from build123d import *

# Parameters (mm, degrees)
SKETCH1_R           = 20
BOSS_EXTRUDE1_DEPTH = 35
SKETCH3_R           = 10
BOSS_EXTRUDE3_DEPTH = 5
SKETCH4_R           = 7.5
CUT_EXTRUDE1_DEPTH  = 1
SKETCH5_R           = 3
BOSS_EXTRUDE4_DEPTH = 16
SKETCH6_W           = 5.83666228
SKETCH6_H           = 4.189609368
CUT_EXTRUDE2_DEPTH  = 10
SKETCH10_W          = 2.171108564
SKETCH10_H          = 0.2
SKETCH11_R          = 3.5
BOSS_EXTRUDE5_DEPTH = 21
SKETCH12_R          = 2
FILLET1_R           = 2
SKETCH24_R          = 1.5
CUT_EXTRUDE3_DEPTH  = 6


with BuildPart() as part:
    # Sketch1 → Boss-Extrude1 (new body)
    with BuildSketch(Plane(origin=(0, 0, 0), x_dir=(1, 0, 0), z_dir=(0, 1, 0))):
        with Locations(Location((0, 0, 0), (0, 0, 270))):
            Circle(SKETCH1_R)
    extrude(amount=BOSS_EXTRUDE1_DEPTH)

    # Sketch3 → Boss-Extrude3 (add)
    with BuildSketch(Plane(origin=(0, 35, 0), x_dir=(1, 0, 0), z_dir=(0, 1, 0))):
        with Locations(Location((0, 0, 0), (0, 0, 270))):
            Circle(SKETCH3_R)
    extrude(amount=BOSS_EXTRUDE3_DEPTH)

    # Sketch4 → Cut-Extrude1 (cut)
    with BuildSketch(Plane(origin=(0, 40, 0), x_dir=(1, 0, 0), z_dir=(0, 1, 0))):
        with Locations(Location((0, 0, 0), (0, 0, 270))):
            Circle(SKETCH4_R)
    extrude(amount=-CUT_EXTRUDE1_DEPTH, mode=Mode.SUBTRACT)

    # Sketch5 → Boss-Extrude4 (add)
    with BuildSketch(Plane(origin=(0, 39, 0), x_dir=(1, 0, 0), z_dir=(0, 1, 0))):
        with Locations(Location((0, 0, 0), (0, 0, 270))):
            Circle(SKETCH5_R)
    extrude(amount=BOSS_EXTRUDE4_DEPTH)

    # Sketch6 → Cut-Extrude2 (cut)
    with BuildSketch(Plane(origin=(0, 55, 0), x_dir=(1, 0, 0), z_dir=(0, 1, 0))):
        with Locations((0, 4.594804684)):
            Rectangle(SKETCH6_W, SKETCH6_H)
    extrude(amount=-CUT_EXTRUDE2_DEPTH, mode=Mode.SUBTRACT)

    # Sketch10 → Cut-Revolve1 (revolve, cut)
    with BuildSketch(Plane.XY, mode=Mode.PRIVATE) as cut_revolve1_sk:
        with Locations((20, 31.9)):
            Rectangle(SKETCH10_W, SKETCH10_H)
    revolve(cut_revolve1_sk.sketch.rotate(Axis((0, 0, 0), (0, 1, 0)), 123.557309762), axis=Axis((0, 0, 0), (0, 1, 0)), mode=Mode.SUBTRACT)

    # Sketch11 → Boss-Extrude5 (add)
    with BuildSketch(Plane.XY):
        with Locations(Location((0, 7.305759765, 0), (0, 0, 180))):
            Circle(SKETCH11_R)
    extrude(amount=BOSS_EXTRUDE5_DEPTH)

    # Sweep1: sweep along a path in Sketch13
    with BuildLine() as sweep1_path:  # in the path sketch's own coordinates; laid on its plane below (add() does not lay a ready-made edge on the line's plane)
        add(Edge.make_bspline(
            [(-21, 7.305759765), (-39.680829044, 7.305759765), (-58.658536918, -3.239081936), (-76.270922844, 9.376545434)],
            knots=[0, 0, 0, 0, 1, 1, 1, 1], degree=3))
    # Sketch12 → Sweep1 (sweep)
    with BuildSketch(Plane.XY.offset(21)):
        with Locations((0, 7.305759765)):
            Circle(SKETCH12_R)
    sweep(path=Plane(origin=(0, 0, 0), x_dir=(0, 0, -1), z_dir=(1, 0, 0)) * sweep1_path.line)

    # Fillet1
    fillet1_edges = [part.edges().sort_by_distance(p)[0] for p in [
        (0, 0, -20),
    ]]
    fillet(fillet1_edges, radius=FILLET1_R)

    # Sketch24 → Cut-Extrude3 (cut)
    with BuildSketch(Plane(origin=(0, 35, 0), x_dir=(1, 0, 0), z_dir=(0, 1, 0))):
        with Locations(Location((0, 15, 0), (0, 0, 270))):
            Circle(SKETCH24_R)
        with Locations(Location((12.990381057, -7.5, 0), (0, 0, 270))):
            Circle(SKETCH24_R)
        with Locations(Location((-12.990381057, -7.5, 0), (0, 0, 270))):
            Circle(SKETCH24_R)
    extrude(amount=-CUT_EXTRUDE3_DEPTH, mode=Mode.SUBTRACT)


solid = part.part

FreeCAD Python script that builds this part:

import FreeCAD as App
import Part
import Sketcher

V = App.Vector


def edges_at(feature, points):
    """Names of the edges that pass closest to the given points."""
    edges = feature.Shape.Edges
    near = lambda p: min(range(len(edges)), key=lambda i: edges[i].distToShape(Part.Vertex(*p))[0])
    return sorted({f"Edge{near(p) + 1}" for p in points})

doc = App.newDocument("Part")
params = doc.addObject("Spreadsheet::Sheet", "Params")
for row, (alias, value) in enumerate([
    ("sketch1_diameter", "40 mm"),
    ("pad1_length", "35 mm"),
    ("sketch2_diameter", "20 mm"),
    ("pad2_length", "5 mm"),
    ("sketch3_diameter", "15 mm"),
    ("pocket1_length", "1 mm"),
    ("sketch4_diameter", "6 mm"),
    ("pad3_length", "16 mm"),
    ("pocket2_length", "10 mm"),
    ("sketch6_height", "0.2 mm"),
    ("groove_angle", "360 deg"),
    ("sketch7_diameter", "7 mm"),
    ("pad4_length", "21 mm"),
    ("sketch8_diameter", "4 mm"),
    ("fillet_radius", "2 mm"),
    ("sketch10_diameter", "3 mm"),
    ("pocket3_length", "6 mm"),
], start=1):
    params.set(f"A{row}", alias)
    params.set(f"B{row}", "=" + value)
    params.setAlias(f"B{row}", alias)

body = doc.addObject("PartDesign::Body", "Body")

# Sketch on XZ plane
sketch1 = body.newObject("Sketcher::SketchObject", "Sketch")
sketch1.AttachmentSupport = (doc.getObject("XZ_Plane"), [""])
sketch1.MapMode = "FlatFace"
sketch1.addGeometry(Part.Circle(V(0, 0, 0), V(0, 0, 1), 20), False)
sketch1.addConstraint(Sketcher.Constraint("Coincident", 0, 3, -1, 1))
sketch1.addConstraint(Sketcher.Constraint("Diameter", 0, 40.0))
sketch1.setExpression("Constraints[1]", "Params.sketch1_diameter")
pad1 = body.newObject("PartDesign::Pad", "Pad")
pad1.Profile = sketch1
pad1.setExpression("Length", "Params.pad1_length")
pad1.Reversed = True

# Sketch on XZ plane
sketch2 = body.newObject("Sketcher::SketchObject", "Sketch001")
sketch2.AttachmentSupport = (doc.getObject("XZ_Plane"), [""])
sketch2.MapMode = "FlatFace"
sketch2.AttachmentOffset = App.Placement(V(0, 0, -35), App.Rotation())
sketch2.addGeometry(Part.Circle(V(0, 0, 0), V(0, 0, 1), 10), False)
sketch2.addConstraint(Sketcher.Constraint("Coincident", 0, 3, -1, 1))
sketch2.addConstraint(Sketcher.Constraint("Diameter", 0, 20.0))
sketch2.setExpression("Constraints[1]", "Params.sketch2_diameter")
pad2 = body.newObject("PartDesign::Pad", "Pad001")
pad2.Profile = sketch2
pad2.setExpression("Length", "Params.pad2_length")
pad2.Reversed = True

# Sketch on XZ plane
sketch3 = body.newObject("Sketcher::SketchObject", "Sketch002")
sketch3.AttachmentSupport = (doc.getObject("XZ_Plane"), [""])
sketch3.MapMode = "FlatFace"
sketch3.AttachmentOffset = App.Placement(V(0, 0, -40), App.Rotation())
sketch3.addGeometry(Part.Circle(V(0, 0, 0), V(0, 0, 1), 8), False)
sketch3.addConstraint(Sketcher.Constraint("Coincident", 0, 3, -1, 1))
sketch3.addConstraint(Sketcher.Constraint("Diameter", 0, 15.0))
sketch3.setExpression("Constraints[1]", "Params.sketch3_diameter")
pocket1 = body.newObject("PartDesign::Pocket", "Pocket")
pocket1.Profile = sketch3
pocket1.setExpression("Length", "Params.pocket1_length")
pocket1.Reversed = True

# Sketch on XZ plane
sketch4 = body.newObject("Sketcher::SketchObject", "Sketch003")
sketch4.AttachmentSupport = (doc.getObject("XZ_Plane"), [""])
sketch4.MapMode = "FlatFace"
sketch4.AttachmentOffset = App.Placement(V(0, 0, -39), App.Rotation())
sketch4.addGeometry(Part.Circle(V(0, 0, 0), V(0, 0, 1), 3), False)
sketch4.addConstraint(Sketcher.Constraint("Coincident", 0, 3, -1, 1))
sketch4.addConstraint(Sketcher.Constraint("Diameter", 0, 6.0))
sketch4.setExpression("Constraints[1]", "Params.sketch4_diameter")
pad3 = body.newObject("PartDesign::Pad", "Pad002")
pad3.Profile = sketch4
pad3.setExpression("Length", "Params.pad3_length")
pad3.Reversed = True

# Sketch on XZ plane
sketch5 = body.newObject("Sketcher::SketchObject", "Sketch004")
sketch5.AttachmentSupport = (doc.getObject("XZ_Plane"), [""])
sketch5.MapMode = "FlatFace"
sketch5.AttachmentOffset = App.Placement(V(0, 0, -55), App.Rotation())
sketch5.addGeometry(Part.LineSegment(V(-2.9, -6.7, 0), V(-2.9, -2.5, 0)), False)
sketch5.addGeometry(Part.LineSegment(V(-2.9, -2.5, 0), V(2.9, -2.5, 0)), False)
sketch5.addGeometry(Part.LineSegment(V(2.9, -2.5, 0), V(2.9, -6.7, 0)), False)
sketch5.addGeometry(Part.LineSegment(V(2.9, -6.7, 0), V(-2.9, -6.7, 0)), False)
sketch5.addConstraint(Sketcher.Constraint("Coincident", 0, 2, 1, 1))
sketch5.addConstraint(Sketcher.Constraint("Coincident", 1, 2, 2, 1))
sketch5.addConstraint(Sketcher.Constraint("Coincident", 2, 2, 3, 1))
sketch5.addConstraint(Sketcher.Constraint("Coincident", 3, 2, 0, 1))
sketch5.addConstraint(Sketcher.Constraint("Vertical", 0))
sketch5.addConstraint(Sketcher.Constraint("Horizontal", 1))
sketch5.addConstraint(Sketcher.Constraint("Vertical", 2))
sketch5.addConstraint(Sketcher.Constraint("Horizontal", 3))
sketch5.addConstraint(Sketcher.Constraint("DistanceY", 0, 2, -1, 1, 2.5))
sketch5.addConstraint(Sketcher.Constraint("DistanceY", 0, 1, 0, 2, 4.189609))
sketch5.addConstraint(Sketcher.Constraint("DistanceX", 1, 1, 1, 2, 5.836662))
sketch5.addConstraint(Sketcher.Constraint("DistanceX", 0, 2, -1, 1, 2.918331))
pocket2 = body.newObject("PartDesign::Pocket", "Pocket001")
pocket2.Profile = sketch5
pocket2.setExpression("Length", "Params.pocket2_length")
pocket2.Reversed = True

# Sketch on XY plane
sketch6 = body.newObject("Sketcher::SketchObject", "Sketch005")
sketch6.AttachmentSupport = (doc.getObject("XY_Plane"), [""])
sketch6.MapMode = "FlatFace"
sketch6.addGeometry(Part.LineSegment(V(18.91, 32, 0), V(18.91, 31.8, 0)), False)
sketch6.addGeometry(Part.LineSegment(V(18.91, 31.8, 0), V(21.09, 31.8, 0)), False)
sketch6.addGeometry(Part.LineSegment(V(21.09, 31.8, 0), V(21.09, 32, 0)), False)
sketch6.addGeometry(Part.LineSegment(V(21.09, 32, 0), V(18.91, 32, 0)), False)
sketch6.addConstraint(Sketcher.Constraint("Coincident", 0, 2, 1, 1))
sketch6.addConstraint(Sketcher.Constraint("Coincident", 1, 2, 2, 1))
sketch6.addConstraint(Sketcher.Constraint("Coincident", 2, 2, 3, 1))
sketch6.addConstraint(Sketcher.Constraint("Coincident", 3, 2, 0, 1))
sketch6.addConstraint(Sketcher.Constraint("Vertical", 0))
sketch6.addConstraint(Sketcher.Constraint("Horizontal", 1))
sketch6.addConstraint(Sketcher.Constraint("Vertical", 2))
sketch6.addConstraint(Sketcher.Constraint("Horizontal", 3))
sketch6.addConstraint(Sketcher.Constraint("DistanceY", 0, 2, 0, 1, 0.2))
sketch6.addConstraint(Sketcher.Constraint("DistanceY", -1, 1, 2, 2, 32.0))
sketch6.addConstraint(Sketcher.Constraint("DistanceX", 1, 1, 1, 2, 2.171109))
sketch6.addConstraint(Sketcher.Constraint("DistanceX", -1, 1, 0, 2, 18.914446))
sketch6.setExpression("Constraints[8]", "Params.sketch6_height")
groove = body.newObject("PartDesign::Groove", "Groove")
groove.Profile = sketch6
groove.ReferenceAxis = (sketch6, ["V_Axis"])
groove.setExpression("Angle", "Params.groove_angle")

# Sketch on XY plane
sketch7 = body.newObject("Sketcher::SketchObject", "Sketch006")
sketch7.AttachmentSupport = (doc.getObject("XY_Plane"), [""])
sketch7.MapMode = "FlatFace"
sketch7.addGeometry(Part.Circle(V(0, 7.3, 0), V(0, 0, 1), 3.5), False)
sketch7.addConstraint(Sketcher.Constraint("PointOnObject", 0, 3, -2))
sketch7.addConstraint(Sketcher.Constraint("Diameter", 0, 7.0))
sketch7.addConstraint(Sketcher.Constraint("DistanceY", -1, 1, 0, 3, 7.30576))
sketch7.setExpression("Constraints[1]", "Params.sketch7_diameter")
pad4 = body.newObject("PartDesign::Pad", "Pad003")
pad4.Profile = sketch7
pad4.setExpression("Length", "Params.pad4_length")

# Sketch on XY plane
sketch8 = body.newObject("Sketcher::SketchObject", "Sketch007")
sketch8.AttachmentSupport = (doc.getObject("XY_Plane"), [""])
sketch8.MapMode = "FlatFace"
sketch8.AttachmentOffset = App.Placement(V(0, 0, 21), App.Rotation())
sketch8.addGeometry(Part.Circle(V(0, 7.3, 0), V(0, 0, 1), 2), False)
sketch8.addConstraint(Sketcher.Constraint("PointOnObject", 0, 3, -2))
sketch8.addConstraint(Sketcher.Constraint("Diameter", 0, 4.0))
sketch8.addConstraint(Sketcher.Constraint("DistanceY", -1, 1, 0, 3, 7.30576))
sketch8.setExpression("Constraints[1]", "Params.sketch8_diameter")

# Sketch on YZ plane
sketch9 = body.newObject("Sketcher::SketchObject", "Sketch008")
sketch9.AttachmentSupport = (doc.getObject("YZ_Plane"), [""])
sketch9.MapMode = "FlatFace"
sketch9.addGeometry(Part.BSplineCurve([V(7.30576, 21, 0), V(7.30576, 39.680829, 0), V(-3.239082, 58.658537, 0), V(9.376545, 76.270923, 0)], [4, 4], [0, 1], False, 3, [1, 1, 1, 1], False), False)
sketch9.addConstraint(Sketcher.Constraint("Block", 0))
doc.recompute()

additivepipe = body.newObject("PartDesign::AdditivePipe", "AdditivePipe")
additivepipe.Profile = sketch8
additivepipe.Spine = (sketch9, ["Edge1"])
doc.recompute()

fillet = body.newObject("PartDesign::Fillet", "Fillet")
fillet.Base = (additivepipe, edges_at(additivepipe, [(0, 0, -20)]))
fillet.setExpression("Radius", "Params.fillet_radius")

# Sketch on XZ plane
sketch10 = body.newObject("Sketcher::SketchObject", "Sketch009")
sketch10.AttachmentSupport = (doc.getObject("XZ_Plane"), [""])
sketch10.MapMode = "FlatFace"
sketch10.AttachmentOffset = App.Placement(V(0, 0, -35), App.Rotation())
sketch10.addGeometry(Part.Circle(V(0, -15, 0), V(0, 0, 1), 1.5), False)
sketch10.addGeometry(Part.Circle(V(13, 7.5, 0), V(0, 0, 1), 1.5), False)
sketch10.addGeometry(Part.Circle(V(-13, 7.5, 0), V(0, 0, 1), 1.5), False)
sketch10.addConstraint(Sketcher.Constraint("Equal", 0, 1))
sketch10.addConstraint(Sketcher.Constraint("Equal", 1, 2))
sketch10.addConstraint(Sketcher.Constraint("Symmetric", 1, 3, 2, 3, -2))
sketch10.addConstraint(Sketcher.Constraint("PointOnObject", 0, 3, -2))
sketch10.addConstraint(Sketcher.Constraint("Diameter", 0, 3.0))
sketch10.addConstraint(Sketcher.Constraint("DistanceY", 0, 3, -1, 1, 15.0))
sketch10.addConstraint(Sketcher.Constraint("DistanceY", -1, 1, 1, 3, 7.5))
sketch10.addConstraint(Sketcher.Constraint("DistanceX", -1, 1, 1, 3, 12.990381))
sketch10.setExpression("Constraints[4]", "Params.sketch10_diameter")
pocket3 = body.newObject("PartDesign::Pocket", "Pocket002")
pocket3.Profile = sketch10
pocket3.setExpression("Length", "Params.pocket3_length")
pocket3.Reversed = True

doc.recompute()
